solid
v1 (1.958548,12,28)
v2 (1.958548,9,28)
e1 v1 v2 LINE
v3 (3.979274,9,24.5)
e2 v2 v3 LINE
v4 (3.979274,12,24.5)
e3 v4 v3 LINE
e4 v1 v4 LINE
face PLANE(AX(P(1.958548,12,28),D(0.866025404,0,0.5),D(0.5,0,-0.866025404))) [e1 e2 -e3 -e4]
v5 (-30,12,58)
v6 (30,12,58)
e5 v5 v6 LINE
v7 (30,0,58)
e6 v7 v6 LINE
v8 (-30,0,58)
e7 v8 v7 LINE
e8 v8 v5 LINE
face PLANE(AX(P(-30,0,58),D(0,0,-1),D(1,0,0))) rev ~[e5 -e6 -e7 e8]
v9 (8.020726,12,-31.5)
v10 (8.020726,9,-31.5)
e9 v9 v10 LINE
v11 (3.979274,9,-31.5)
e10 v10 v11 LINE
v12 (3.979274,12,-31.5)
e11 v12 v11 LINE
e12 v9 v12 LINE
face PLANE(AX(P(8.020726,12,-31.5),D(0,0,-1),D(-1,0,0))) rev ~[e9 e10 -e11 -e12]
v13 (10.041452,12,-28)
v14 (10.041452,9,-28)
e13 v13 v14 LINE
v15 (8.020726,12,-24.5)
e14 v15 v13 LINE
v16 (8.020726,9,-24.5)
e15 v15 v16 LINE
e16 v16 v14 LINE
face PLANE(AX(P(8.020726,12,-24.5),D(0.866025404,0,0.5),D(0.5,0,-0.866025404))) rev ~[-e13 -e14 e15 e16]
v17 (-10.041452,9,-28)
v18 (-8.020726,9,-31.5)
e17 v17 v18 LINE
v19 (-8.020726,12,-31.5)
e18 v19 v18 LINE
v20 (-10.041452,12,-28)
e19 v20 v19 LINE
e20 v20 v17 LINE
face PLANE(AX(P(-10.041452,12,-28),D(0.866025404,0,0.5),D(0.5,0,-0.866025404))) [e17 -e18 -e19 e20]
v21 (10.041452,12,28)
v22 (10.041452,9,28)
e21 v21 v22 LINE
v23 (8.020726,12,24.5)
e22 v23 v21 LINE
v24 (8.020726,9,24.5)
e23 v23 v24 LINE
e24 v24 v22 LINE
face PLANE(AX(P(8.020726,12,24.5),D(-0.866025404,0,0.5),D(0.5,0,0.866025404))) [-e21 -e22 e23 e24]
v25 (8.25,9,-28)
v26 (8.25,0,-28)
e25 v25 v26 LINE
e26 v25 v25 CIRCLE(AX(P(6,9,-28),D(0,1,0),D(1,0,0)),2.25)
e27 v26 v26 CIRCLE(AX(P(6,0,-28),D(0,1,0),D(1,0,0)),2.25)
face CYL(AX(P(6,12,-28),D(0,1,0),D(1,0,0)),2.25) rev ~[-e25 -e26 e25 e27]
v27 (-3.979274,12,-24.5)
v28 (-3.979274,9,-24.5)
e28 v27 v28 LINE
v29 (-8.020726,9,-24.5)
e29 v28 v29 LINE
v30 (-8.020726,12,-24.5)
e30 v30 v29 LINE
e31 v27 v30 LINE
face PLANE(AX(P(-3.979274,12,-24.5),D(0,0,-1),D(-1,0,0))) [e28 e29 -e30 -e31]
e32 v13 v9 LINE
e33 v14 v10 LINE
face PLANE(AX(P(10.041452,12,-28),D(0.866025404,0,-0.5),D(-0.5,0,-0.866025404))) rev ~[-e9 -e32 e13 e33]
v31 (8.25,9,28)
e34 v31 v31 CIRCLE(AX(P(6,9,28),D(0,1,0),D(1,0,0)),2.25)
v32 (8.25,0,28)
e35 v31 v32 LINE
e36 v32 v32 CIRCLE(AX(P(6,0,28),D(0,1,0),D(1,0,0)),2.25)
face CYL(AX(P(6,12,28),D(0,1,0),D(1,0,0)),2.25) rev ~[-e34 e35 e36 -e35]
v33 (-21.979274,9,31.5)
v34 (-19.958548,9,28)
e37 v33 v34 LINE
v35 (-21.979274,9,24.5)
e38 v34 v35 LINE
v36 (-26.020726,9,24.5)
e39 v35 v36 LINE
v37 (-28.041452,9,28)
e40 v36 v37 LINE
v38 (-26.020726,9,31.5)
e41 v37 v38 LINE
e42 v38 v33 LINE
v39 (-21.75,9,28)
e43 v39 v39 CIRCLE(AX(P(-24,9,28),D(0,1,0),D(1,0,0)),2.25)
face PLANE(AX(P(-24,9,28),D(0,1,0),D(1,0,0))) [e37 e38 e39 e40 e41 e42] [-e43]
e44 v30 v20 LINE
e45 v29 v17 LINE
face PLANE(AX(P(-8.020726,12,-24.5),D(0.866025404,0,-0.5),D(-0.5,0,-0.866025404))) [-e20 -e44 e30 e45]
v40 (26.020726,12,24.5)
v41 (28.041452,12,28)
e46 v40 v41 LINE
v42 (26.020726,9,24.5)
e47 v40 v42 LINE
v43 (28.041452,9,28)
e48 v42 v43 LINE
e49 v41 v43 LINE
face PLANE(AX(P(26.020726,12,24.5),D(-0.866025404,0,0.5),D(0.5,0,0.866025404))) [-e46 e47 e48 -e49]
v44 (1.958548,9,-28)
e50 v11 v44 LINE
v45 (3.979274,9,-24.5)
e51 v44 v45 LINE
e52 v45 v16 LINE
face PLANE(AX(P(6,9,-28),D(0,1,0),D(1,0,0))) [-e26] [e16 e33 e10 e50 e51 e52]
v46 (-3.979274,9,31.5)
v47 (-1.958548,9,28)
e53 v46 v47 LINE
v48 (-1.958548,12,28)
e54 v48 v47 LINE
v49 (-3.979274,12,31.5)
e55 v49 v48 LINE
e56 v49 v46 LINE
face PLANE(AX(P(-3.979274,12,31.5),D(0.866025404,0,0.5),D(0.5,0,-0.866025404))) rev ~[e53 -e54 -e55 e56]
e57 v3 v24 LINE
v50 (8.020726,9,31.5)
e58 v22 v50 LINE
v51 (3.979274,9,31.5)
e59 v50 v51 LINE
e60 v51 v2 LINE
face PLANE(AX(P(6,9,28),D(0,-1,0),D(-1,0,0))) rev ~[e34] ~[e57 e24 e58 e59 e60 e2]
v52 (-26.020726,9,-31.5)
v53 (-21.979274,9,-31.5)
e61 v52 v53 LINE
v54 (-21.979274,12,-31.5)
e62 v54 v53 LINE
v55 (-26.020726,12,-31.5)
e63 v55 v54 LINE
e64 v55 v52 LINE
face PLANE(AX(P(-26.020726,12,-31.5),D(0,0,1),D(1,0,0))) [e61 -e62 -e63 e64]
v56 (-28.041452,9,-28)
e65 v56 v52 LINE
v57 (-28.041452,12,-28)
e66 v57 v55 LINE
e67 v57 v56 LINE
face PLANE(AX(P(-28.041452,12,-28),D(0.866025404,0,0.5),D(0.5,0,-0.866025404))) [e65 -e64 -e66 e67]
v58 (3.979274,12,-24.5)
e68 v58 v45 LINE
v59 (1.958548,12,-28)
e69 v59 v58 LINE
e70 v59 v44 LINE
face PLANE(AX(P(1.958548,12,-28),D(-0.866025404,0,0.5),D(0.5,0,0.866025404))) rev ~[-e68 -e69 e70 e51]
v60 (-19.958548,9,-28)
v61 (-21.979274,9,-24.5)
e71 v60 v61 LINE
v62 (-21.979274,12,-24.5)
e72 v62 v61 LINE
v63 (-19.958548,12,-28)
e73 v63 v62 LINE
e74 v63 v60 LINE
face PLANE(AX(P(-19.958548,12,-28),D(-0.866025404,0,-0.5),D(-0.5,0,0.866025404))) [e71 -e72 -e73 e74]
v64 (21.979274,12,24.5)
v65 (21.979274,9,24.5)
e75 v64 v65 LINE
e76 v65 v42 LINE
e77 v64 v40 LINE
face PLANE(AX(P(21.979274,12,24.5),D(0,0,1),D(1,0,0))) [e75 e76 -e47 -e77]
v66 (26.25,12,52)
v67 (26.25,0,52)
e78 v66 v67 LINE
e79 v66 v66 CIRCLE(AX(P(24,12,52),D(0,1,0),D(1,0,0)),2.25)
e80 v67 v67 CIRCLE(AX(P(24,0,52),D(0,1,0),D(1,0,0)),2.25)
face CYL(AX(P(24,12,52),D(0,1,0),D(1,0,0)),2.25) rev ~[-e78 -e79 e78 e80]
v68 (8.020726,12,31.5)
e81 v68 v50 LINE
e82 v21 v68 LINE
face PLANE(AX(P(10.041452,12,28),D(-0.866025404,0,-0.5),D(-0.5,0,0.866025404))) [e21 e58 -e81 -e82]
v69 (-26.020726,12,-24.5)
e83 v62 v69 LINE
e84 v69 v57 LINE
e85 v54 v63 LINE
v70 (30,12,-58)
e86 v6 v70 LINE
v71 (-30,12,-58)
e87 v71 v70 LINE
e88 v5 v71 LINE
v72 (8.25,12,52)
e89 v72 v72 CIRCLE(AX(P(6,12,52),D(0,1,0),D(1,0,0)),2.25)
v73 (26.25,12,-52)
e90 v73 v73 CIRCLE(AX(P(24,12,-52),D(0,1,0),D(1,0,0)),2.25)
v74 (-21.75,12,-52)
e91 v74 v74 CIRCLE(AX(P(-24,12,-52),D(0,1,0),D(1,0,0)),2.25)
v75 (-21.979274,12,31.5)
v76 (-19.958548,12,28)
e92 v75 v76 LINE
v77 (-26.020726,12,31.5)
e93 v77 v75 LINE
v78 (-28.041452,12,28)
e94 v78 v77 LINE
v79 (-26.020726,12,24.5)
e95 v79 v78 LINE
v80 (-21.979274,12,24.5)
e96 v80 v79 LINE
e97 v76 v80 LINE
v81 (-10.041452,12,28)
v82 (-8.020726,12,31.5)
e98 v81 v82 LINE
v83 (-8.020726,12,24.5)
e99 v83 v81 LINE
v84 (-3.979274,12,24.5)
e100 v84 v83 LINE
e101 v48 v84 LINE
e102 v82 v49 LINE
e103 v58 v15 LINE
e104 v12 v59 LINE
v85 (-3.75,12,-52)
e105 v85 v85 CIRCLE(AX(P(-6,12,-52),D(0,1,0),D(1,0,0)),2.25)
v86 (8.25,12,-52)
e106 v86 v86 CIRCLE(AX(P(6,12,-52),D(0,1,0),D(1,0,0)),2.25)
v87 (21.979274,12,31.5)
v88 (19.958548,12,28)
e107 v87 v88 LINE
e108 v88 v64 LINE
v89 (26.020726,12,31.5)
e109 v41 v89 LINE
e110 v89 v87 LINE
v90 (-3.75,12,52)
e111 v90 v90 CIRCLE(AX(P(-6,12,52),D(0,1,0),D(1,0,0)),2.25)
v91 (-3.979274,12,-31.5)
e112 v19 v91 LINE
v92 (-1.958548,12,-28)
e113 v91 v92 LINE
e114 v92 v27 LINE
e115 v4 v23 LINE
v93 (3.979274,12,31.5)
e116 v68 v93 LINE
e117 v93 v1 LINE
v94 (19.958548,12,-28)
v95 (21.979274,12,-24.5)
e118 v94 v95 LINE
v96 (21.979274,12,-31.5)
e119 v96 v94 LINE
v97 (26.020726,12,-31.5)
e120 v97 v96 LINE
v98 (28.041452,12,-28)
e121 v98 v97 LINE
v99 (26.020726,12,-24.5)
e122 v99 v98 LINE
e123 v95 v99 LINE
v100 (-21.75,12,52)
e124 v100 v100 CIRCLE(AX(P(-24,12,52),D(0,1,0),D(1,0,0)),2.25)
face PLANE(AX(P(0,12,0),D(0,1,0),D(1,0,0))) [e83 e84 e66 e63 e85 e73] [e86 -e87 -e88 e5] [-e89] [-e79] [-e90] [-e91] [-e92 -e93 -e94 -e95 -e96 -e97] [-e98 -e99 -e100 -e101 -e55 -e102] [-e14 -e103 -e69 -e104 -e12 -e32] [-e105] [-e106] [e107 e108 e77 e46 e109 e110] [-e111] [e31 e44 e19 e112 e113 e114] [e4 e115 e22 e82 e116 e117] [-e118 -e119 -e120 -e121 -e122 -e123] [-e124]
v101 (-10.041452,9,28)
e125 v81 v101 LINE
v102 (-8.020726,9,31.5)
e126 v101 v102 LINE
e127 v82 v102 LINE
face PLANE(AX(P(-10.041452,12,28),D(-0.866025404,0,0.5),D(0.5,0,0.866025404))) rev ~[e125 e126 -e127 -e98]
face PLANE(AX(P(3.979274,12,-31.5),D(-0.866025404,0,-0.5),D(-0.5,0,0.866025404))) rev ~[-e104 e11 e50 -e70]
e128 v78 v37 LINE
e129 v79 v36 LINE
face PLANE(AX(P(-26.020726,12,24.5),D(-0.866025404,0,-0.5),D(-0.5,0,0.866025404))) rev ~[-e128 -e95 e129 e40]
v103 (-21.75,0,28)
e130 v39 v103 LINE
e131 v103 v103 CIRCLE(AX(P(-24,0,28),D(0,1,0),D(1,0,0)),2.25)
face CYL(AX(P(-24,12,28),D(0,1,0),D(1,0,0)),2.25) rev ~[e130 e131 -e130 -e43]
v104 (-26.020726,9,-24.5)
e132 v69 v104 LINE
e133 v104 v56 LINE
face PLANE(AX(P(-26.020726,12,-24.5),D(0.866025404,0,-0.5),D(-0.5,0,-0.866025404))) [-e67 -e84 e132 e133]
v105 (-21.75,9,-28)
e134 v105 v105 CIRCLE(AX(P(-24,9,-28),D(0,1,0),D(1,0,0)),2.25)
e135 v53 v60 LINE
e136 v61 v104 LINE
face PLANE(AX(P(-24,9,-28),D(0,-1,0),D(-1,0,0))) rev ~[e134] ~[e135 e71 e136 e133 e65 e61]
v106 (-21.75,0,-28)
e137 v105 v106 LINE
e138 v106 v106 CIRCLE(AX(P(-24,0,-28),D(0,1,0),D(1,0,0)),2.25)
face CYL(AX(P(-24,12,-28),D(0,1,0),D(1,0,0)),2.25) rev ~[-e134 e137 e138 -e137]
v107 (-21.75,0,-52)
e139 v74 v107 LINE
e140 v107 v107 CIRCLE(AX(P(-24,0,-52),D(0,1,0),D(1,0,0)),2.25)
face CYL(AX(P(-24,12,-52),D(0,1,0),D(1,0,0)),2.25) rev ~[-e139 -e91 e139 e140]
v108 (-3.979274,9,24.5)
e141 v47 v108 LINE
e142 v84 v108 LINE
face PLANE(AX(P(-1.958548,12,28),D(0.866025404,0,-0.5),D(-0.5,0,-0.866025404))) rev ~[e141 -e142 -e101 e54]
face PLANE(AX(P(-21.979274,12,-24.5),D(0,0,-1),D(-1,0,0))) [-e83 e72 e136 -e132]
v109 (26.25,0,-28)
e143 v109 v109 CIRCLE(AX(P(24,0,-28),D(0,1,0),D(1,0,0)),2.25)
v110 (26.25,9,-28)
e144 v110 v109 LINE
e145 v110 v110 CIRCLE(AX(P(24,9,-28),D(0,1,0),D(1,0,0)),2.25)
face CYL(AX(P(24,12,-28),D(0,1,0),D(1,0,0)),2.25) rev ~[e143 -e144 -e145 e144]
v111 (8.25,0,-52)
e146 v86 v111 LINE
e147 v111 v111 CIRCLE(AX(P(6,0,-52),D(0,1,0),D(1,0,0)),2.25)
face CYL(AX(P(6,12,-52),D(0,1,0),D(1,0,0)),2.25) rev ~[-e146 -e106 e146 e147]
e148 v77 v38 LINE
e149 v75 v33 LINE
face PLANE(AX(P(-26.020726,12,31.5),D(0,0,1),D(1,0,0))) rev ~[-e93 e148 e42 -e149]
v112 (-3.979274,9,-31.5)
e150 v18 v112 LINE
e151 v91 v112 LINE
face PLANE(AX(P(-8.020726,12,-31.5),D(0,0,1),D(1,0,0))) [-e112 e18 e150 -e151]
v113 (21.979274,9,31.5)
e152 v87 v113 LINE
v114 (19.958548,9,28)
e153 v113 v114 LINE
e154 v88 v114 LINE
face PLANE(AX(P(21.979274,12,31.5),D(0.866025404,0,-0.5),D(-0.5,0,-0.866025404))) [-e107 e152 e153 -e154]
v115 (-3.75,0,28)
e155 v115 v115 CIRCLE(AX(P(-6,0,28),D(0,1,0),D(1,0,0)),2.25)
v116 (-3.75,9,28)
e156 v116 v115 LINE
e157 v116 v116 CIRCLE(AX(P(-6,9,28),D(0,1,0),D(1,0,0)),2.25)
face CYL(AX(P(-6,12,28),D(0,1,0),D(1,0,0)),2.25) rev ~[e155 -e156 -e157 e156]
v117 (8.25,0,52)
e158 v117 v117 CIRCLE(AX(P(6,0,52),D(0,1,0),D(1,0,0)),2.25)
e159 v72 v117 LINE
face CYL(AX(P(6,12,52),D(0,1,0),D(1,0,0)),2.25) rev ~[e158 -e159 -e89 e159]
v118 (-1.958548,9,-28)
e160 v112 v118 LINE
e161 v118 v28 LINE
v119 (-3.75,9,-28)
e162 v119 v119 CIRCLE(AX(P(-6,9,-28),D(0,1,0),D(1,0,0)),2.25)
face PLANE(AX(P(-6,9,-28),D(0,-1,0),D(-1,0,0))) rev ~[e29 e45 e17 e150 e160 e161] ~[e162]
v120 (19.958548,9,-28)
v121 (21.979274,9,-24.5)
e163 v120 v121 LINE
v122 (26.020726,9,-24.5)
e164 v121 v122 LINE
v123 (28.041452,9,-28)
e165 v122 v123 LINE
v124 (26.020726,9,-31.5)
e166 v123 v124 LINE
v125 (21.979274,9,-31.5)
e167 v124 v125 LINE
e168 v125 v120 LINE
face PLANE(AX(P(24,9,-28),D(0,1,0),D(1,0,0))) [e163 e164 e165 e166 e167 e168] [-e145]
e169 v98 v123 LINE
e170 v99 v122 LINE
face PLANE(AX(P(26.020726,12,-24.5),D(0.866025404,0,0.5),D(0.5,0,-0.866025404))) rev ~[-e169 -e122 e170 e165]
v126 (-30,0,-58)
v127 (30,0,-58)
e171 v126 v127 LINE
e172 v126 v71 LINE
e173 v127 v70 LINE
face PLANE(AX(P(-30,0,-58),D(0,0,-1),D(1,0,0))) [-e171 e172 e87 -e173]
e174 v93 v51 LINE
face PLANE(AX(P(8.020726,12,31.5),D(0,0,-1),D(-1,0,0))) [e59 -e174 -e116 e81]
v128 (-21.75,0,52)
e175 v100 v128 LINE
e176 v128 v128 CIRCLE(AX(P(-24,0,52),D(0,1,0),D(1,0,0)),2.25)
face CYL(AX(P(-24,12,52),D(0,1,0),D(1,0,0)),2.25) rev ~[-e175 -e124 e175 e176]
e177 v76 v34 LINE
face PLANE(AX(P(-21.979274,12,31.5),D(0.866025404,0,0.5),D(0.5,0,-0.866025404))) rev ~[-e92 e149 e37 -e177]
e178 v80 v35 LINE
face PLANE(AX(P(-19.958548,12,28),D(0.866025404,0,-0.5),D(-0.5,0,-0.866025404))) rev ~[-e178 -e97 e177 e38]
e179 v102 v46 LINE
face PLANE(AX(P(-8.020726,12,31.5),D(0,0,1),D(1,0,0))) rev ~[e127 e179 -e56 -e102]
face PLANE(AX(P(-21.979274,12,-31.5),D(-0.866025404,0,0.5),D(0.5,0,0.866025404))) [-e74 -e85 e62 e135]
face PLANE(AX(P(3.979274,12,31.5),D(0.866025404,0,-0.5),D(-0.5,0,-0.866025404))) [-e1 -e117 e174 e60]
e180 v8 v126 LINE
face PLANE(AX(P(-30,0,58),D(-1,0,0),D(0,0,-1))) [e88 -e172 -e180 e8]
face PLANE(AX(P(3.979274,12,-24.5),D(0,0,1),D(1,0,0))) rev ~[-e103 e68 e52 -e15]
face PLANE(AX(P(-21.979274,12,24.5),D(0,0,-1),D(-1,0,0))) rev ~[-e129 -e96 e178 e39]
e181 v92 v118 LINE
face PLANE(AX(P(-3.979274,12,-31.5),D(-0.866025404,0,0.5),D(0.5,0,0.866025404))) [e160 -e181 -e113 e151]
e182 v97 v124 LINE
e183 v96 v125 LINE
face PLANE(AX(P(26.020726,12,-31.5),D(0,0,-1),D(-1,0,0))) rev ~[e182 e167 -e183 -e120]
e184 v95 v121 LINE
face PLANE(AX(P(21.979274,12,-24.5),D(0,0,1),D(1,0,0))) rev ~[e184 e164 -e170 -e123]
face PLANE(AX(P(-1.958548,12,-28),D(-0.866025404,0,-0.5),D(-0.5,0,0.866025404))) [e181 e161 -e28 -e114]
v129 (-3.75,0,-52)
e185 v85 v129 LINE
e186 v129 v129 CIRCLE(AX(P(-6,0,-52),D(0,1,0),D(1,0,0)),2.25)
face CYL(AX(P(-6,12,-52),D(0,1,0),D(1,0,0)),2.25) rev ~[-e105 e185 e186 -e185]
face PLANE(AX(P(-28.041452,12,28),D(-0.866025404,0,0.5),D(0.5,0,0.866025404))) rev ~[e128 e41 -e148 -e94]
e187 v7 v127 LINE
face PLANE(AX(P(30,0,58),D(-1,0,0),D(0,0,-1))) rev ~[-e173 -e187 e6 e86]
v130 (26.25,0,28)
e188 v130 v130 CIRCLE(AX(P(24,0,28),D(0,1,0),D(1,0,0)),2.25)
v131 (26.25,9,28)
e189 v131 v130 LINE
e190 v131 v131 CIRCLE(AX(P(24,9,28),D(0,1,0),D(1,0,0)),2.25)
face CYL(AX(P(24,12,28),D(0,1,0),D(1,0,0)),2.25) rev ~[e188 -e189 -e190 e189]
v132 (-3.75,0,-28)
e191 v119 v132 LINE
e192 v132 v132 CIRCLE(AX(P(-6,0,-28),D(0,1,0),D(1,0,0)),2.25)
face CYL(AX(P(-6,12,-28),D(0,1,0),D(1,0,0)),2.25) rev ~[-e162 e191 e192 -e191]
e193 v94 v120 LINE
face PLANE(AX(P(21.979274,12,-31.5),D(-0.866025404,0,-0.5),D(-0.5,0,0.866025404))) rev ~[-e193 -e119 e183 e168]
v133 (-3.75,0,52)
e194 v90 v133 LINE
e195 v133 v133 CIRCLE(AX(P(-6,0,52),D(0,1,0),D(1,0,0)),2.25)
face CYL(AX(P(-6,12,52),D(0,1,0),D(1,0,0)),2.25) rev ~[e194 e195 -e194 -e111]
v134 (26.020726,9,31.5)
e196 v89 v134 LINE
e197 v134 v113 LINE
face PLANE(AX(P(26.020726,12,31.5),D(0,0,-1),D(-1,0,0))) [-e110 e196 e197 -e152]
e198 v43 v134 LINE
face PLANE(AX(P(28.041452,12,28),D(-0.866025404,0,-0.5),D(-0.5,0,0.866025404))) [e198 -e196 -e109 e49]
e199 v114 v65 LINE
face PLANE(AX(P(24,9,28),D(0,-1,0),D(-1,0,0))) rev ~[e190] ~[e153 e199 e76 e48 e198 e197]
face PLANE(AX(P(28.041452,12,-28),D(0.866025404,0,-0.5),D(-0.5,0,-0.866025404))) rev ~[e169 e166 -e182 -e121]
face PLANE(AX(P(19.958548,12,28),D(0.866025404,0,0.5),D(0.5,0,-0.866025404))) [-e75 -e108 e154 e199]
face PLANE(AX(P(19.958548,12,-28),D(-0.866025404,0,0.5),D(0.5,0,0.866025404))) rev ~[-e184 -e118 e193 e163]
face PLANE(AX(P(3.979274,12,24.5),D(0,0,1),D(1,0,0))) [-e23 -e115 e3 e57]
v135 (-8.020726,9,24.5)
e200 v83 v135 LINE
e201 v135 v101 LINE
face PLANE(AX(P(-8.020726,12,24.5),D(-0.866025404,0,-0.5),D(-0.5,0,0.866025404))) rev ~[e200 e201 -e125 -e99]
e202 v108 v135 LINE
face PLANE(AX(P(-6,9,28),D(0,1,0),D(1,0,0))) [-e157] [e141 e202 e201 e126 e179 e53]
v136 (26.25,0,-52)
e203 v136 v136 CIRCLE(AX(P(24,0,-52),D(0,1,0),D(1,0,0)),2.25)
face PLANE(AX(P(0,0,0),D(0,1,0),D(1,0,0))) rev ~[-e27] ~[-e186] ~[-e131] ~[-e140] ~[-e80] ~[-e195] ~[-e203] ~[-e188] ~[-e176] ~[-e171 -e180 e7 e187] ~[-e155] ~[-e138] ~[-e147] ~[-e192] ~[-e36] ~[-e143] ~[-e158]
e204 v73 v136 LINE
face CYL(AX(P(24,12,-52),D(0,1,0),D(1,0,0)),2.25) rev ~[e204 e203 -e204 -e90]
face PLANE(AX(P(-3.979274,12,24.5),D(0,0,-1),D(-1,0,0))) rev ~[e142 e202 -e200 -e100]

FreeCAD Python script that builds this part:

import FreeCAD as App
import Part
import Sketcher
Q = App.Units.Quantity


def add_polygon(sketch, points):
    """Adds a closed chain of lines whose ends are joined by coincident constraints."""
    first, n = sketch.GeometryCount, len(points)
    for a, b in zip(points, points[1:] + points[:1]):
        sketch.addGeometry(Part.LineSegment(App.Vector(*a, 0), App.Vector(*b, 0)), False)
    for i in range(n):
        sketch.addConstraint(Sketcher.Constraint("Coincident", first + i, 2, first + (i + 1) % n, 1))

doc = App.newDocument("Part")
params = doc.addObject("Spreadsheet::Sheet", "Params")
for row, (alias, value) in enumerate([
    ("sketch1_width", "60 mm"),
    ("sketch1_height", "116 mm"),
    ("pad1_length", "12 mm"),
    ("sketch2_diameter", "4.5 mm"),
    ("sketch3_diameter", "4.5 mm"),
    ("sketch4_diameter", "4.5 mm"),
    ("sketch5_diameter", "4.5 mm"),
    ("sketch6_diameter", "4.5 mm"),
    ("sketch7_diameter", "4.5 mm"),
    ("sketch8_diameter", "4.5 mm"),
    ("sketch9_diameter", "4.5 mm"),
    ("sketch10_diameter", "4.5 mm"),
    ("sketch11_diameter", "4.5 mm"),
    ("sketch12_diameter", "4.5 mm"),
    ("sketch13_diameter", "4.5 mm"),
    ("sketch14_diameter", "4.5 mm"),
    ("sketch15_diameter", "4.5 mm"),
    ("sketch16_diameter", "4.5 mm"),
    ("sketch17_diameter", "4.5 mm"),
    ("sketch18_diameter", "4.5 mm"),
    ("pocket17_length", "1 mm"),
    ("pocket18_length", "1 mm"),
    ("pocket18_length2", "3 mm"),
], start=1):
    params.set(f"A{row}", alias)
    params.set(f"B{row}", "=" + value)
    params.setAlias(f"B{row}", alias)

body = doc.addObject("PartDesign::Body", "Body")

# Sketch on XZ plane
sketch1 = body.newObject("Sketcher::SketchObject", "Sketch")
sketch1.AttachmentSupport = (doc.getObject("XZ_Plane"), [""])
sketch1.MapMode = "FlatFace"
add_polygon(sketch1, [(-30, -58), (-30, 58), (30, 58), (30, -58)])  # lines 0-3
sketch1.addConstraint([
    Sketcher.Constraint("Vertical", 0),
    Sketcher.Constraint("Horizontal", 1),
    Sketcher.Constraint("Vertical", 2),
    Sketcher.Constraint("Horizontal", 3),
    Sketcher.Constraint("Symmetric", 0, 2, 2, 2, -1, 1),
    Sketcher.Constraint("DistanceX", 1, 1, 1, 2, 60.0),
    Sketcher.Constraint("DistanceY", 0, 1, 0, 2, 116.0),
])
sketch1.setExpression("Constraints[9]", "Params.sketch1_width")
sketch1.setExpression("Constraints[10]", "Params.sketch1_height")
pad1 = body.newObject("PartDesign::Pad", "Pad")
pad1.Profile = sketch1
pad1.setExpression("Length", "Params.pad1_length")
pad1.Reversed = True

# Sketch on XZ plane
sketch2 = body.newObject("Sketcher::SketchObject", "Sketch001")
sketch2.AttachmentSupport = (doc.getObject("XZ_Plane"), [""])
sketch2.MapMode = "FlatFace"
sketch2.AttachmentOffset = App.Placement(App.Vector(0, 0, -12), App.Rotation())
sketch2.addGeometry(Part.Circle(App.Vector(-24, -52, 0), App.Vector(0, 0, 1), 2.2), False)
sketch2.addConstraint([
    Sketcher.Constraint("Diameter", 0, 4.5),
    Sketcher.Constraint("DistanceX", 0, 3, -1, 1, 24.0),
    Sketcher.Constraint("DistanceY", 0, 3, -1, 1, 52.0),
])
sketch2.setExpression("Constraints[0]", "Params.sketch2_diameter")
pocket1 = body.newObject("PartDesign::Pocket", "Pocket")
pocket1.Profile = sketch2
pocket1.Type = "UpToFirst"
pocket1.Reversed = True

# Sketch on XZ plane
sketch3 = body.newObject("Sketcher::SketchObject", "Sketch002")
sketch3.AttachmentSupport = (doc.getObject("XZ_Plane"), [""])
sketch3.MapMode = "FlatFace"
sketch3.AttachmentOffset = App.Placement(App.Vector(0, 0, -12), App.Rotation())
sketch3.addGeometry(Part.Circle(App.Vector(-6, -52, 0), App.Vector(0, 0, 1), 2.2), False)
sketch3.addConstraint([
    Sketcher.Constraint("Diameter", 0, 4.5),
    Sketcher.Constraint("DistanceX", 0, 3, -1, 1, 6.0),
    Sketcher.Constraint("DistanceY", 0, 3, -1, 1, 52.0),
])
sketch3.setExpression("Constraints[0]", "Params.sketch3_diameter")
pocket2 = body.newObject("PartDesign::Pocket", "Pocket001")
pocket2.Profile = sketch3
pocket2.Type = "UpToFirst"
pocket2.Reversed = True

# Sketch on XZ plane
sketch4 = body.newObject("Sketcher::SketchObject", "Sketch003")
sketch4.AttachmentSupport = (doc.getObject("XZ_Plane"), [""])
sketch4.MapMode = "FlatFace"
sketch4.AttachmentOffset = App.Placement(App.Vector(0, 0, -12), App.Rotation())
sketch4.addGeometry(Part.Circle(App.Vector(-24, -28, 0), App.Vector(0, 0, 1), 2.2), False)
sketch4.addConstraint([
    Sketcher.Constraint("Diameter", 0, 4.5),
    Sketcher.Constraint("DistanceX", 0, 3, -1, 1, 24.0),
    Sketcher.Constraint("DistanceY", 0, 3, -1, 1, 28.0),
])
sketch4.setExpression("Constraints[0]", "Params.sketch4_diameter")
pocket3 = body.newObject("PartDesign::Pocket", "Pocket002")
pocket3.Profile = sketch4
pocket3.Type = "UpToFirst"
pocket3.Reversed = True

# Sketch on XZ plane
sketch5 = body.newObject("Sketcher::SketchObject", "Sketch004")
sketch5.AttachmentSupport = (doc.getObject("XZ_Plane"), [""])
sketch5.MapMode = "FlatFace"
sketch5.AttachmentOffset = App.Placement(App.Vector(0, 0, -12), App.Rotation())
sketch5.addGeometry(Part.Circle(App.Vector(-6, -28, 0), App.Vector(0, 0, 1), 2.2), False)
sketch5.addConstraint([
    Sketcher.Constraint("Diameter", 0, 4.5),
    Sketcher.Constraint("DistanceX", 0, 3, -1, 1, 6.0),
    Sketcher.Constraint("DistanceY", 0, 3, -1, 1, 28.0),
])
sketch5.setExpression("Constraints[0]", "Params.sketch5_diameter")
pocket4 = body.newObject("PartDesign::Pocket", "Pocket003")
pocket4.Profile = sketch5
pocket4.Type = "UpToFirst"
pocket4.Reversed = True

# Sketch on XZ plane
sketch6 = body.newObject("Sketcher::SketchObject", "Sketch005")
sketch6.AttachmentSupport = (doc.getObject("XZ_Plane"), [""])
sketch6.MapMode = "FlatFace"
sketch6.AttachmentOffset = App.Placement(App.Vector(0, 0, -12), App.Rotation())
sketch6.addGeometry(Part.Circle(App.Vector(6, -28, 0), App.Vector(0, 0, 1), 2.2), False)
sketch6.addConstraint([
    Sketcher.Constraint("Diameter", 0, 4.5),
    Sketcher.Constraint("DistanceX", -1, 1, 0, 3, 6.0),
    Sketcher.Constraint("DistanceY", 0, 3, -1, 1, 28.0),
])
sketch6.setExpression("Constraints[0]", "Params.sketch6_diameter")
pocket5 = body.newObject("PartDesign::Pocket", "Pocket004")
pocket5.Profile = sketch6
pocket5.Type = "UpToFirst"
pocket5.Reversed = True

# Sketch on XZ plane
sketch7 = body.newObject("Sketcher::SketchObject", "Sketch006")
sketch7.AttachmentSupport = (doc.getObject("XZ_Plane"), [""])
sketch7.MapMode = "FlatFace"
sketch7.AttachmentOffset = App.Placement(App.Vector(0, 0, -12), App.Rotation())
sketch7.addGeometry(Part.Circle(App.Vector(24, -28, 0), App.Vector(0, 0, 1), 2.2), False)
sketch7.addConstraint([
    Sketcher.Constraint("Diameter", 0, 4.5),
    Sketcher.Constraint("DistanceX", -1, 1, 0, 3, 24.0),
    Sketcher.Constraint("DistanceY", 0, 3, -1, 1, 28.0),
])
sketch7.setExpression("Constraints[0]", "Params.sketch7_diameter")
pocket6 = body.newObject("PartDesign::Pocket", "Pocket005")
pocket6.Profile = sketch7
pocket6.Type = "UpToFirst"
pocket6.Reversed = True

# Sketch on XZ plane
sketch8 = body.newObject("Sketcher::SketchObject", "Sketch007")
sketch8.AttachmentSupport = (doc.getObject("XZ_Plane"), [""])
sketch8.MapMode = "FlatFace"
sketch8.AttachmentOffset = App.Placement(App.Vector(0, 0, -12), App.Rotation())
sketch8.addGeometry(Part.Circle(App.Vector(6, -52, 0), App.Vector(0, 0, 1), 2.2), False)
sketch8.addConstraint([
    Sketcher.Constraint("Diameter", 0, 4.5),
    Sketcher.Constraint("DistanceX", -1, 1, 0, 3, 6.0),
    Sketcher.Constraint("DistanceY", 0, 3, -1, 1, 52.0),
])
sketch8.setExpression("Constraints[0]", "Params.sketch8_diameter")
pocket7 = body.newObject("PartDesign::Pocket", "Pocket006")
pocket7.Profile = sketch8
pocket7.Type = "UpToFirst"
pocket7.Reversed = True

# Sketch on XZ plane
sketch9 = body.newObject("Sketcher::SketchObject", "Sketch008")
sketch9.AttachmentSupport = (doc.getObject("XZ_Plane"), [""])
sketch9.MapMode = "FlatFace"
sketch9.AttachmentOffset = App.Placement(App.Vector(0, 0, -12), App.Rotation())
sketch9.addGeometry(Part.Circle(App.Vector(24, -52, 0), App.Vector(0, 0, 1), 2.2), False)
sketch9.addConstraint([
    Sketcher.Constraint("Diameter", 0, 4.5),
    Sketcher.Constraint("DistanceX", -1, 1, 0, 3, 24.0),
    Sketcher.Constraint("DistanceY", 0, 3, -1, 1, 52.0),
])
sketch9.setExpression("Constraints[0]", "Params.sketch9_diameter")
pocket8 = body.newObject("PartDesign::Pocket", "Pocket007")
pocket8.Profile = sketch9
pocket8.Type = "UpToFirst"
pocket8.Reversed = True

# Sketch on XZ plane
sketch10 = body.newObject("Sketcher::SketchObject", "Sketch009")
sketch10.AttachmentSupport = (doc.getObject("XZ_Plane"), [""])
sketch10.MapMode = "FlatFace"
sketch10.AttachmentOffset = App.Placement(App.Vector(0, 0, -12), App.Rotation())
sketch10.addGeometry(Part.Circle(App.Vector(24, 52, 0), App.Vector(0, 0, 1), 2.2), False)
sketch10.addConstraint([
    Sketcher.Constraint("Diameter", 0, 4.5),
    Sketcher.Constraint("DistanceX", -1, 1, 0, 3, 24.0),
    Sketcher.Constraint("DistanceY", -1, 1, 0, 3, 52.0),
])
sketch10.setExpression("Constraints[0]", "Params.sketch10_diameter")
pocket9 = body.newObject("PartDesign::Pocket", "Pocket008")
pocket9.Profile = sketch10
pocket9.Type = "UpToFirst"
pocket9.Reversed = True

# Sketch on XZ plane
sketch11 = body.newObject("Sketcher::SketchObject", "Sketch010")
sketch11.AttachmentSupport = (doc.getObject("XZ_Plane"), [""])
sketch11.MapMode = "FlatFace"
sketch11.AttachmentOffset = App.Placement(App.Vector(0, 0, -12), App.Rotation())
sketch11.addGeometry(Part.Circle(App.Vector(6, 52, 0), App.Vector(0, 0, 1), 2.2), False)
sketch11.addConstraint([
    Sketcher.Constraint("Diameter", 0, 4.5),
    Sketcher.Constraint("DistanceX", -1, 1, 0, 3, 6.0),
    Sketcher.Constraint("DistanceY", -1, 1, 0, 3, 52.0),
])
sketch11.setExpression("Constraints[0]", "Params.sketch11_diameter")
pocket10 = body.newObject("PartDesign::Pocket", "Pocket009")
pocket10.Profile = sketch11
pocket10.Type = "UpToFirst"
pocket10.Reversed = True

# Sketch on XZ plane
sketch12 = body.newObject("Sketcher::SketchObject", "Sketch011")
sketch12.AttachmentSupport = (doc.getObject("XZ_Plane"), [""])
sketch12.MapMode = "FlatFace"
sketch12.AttachmentOffset = App.Placement(App.Vector(0, 0, -12), App.Rotation())
sketch12.addGeometry(Part.Circle(App.Vector(24, 28, 0), App.Vector(0, 0, 1), 2.2), False)
sketch12.addConstraint([
    Sketcher.Constraint("Diameter", 0, 4.5),
    Sketcher.Constraint("DistanceX", -1, 1, 0, 3, 24.0),
    Sketcher.Constraint("DistanceY", -1, 1, 0, 3, 28.0),
])
sketch12.setExpression("Constraints[0]", "Params.sketch12_diameter")
pocket11 = body.newObject("PartDesign::Pocket", "Pocket010")
pocket11.Profile = sketch12
pocket11.Type = "UpToFirst"
pocket11.Reversed = True

# Sketch on XZ plane
sketch13 = body.newObject("Sketcher::SketchObject", "Sketch012")
sketch13.AttachmentSupport = (doc.getObject("XZ_Plane"), [""])
sketch13.MapMode = "FlatFace"
sketch13.AttachmentOffset = App.Placement(App.Vector(0, 0, -12), App.Rotation())
sketch13.addGeometry(Part.Circle(App.Vector(6, 28, 0), App.Vector(0, 0, 1), 2.2), False)
sketch13.addConstraint([
    Sketcher.Constraint("Diameter", 0, 4.5),
    Sketcher.Constraint("DistanceX", -1, 1, 0, 3, 6.0),
    Sketcher.Constraint("DistanceY", -1, 1, 0, 3, 28.0),
])
sketch13.setExpression("Constraints[0]", "Params.sketch13_diameter")
pocket12 = body.newObject("PartDesign::Pocket", "Pocket011")
pocket12.Profile = sketch13
pocket12.Type = "UpToFirst"
pocket12.Reversed = True

# Sketch on XZ plane
sketch14 = body.newObject("Sketcher::SketchObject", "Sketch013")
sketch14.AttachmentSupport = (doc.getObject("XZ_Plane"), [""])
sketch14.MapMode = "FlatFace"
sketch14.AttachmentOffset = App.Placement(App.Vector(0, 0, -12), App.Rotation())
sketch14.addGeometry(Part.Circle(App.Vector(-6, 28, 0), App.Vector(0, 0, 1), 2.2), False)
sketch14.addConstraint([
    Sketcher.Constraint("Diameter", 0, 4.5),
    Sketcher.Constraint("DistanceX", 0, 3, -1, 1, 6.0),
    Sketcher.Constraint("DistanceY", -1, 1, 0, 3, 28.0),
])
sketch14.setExpression("Constraints[0]", "Params.sketch14_diameter")
pocket13 = body.newObject("PartDesign::Pocket", "Pocket012")
pocket13.Profile = sketch14
pocket13.Type = "UpToFirst"
pocket13.Reversed = True

# Sketch on XZ plane
sketch15 = body.newObject("Sketcher::SketchObject", "Sketch014")
sketch15.AttachmentSupport = (doc.getObject("XZ_Plane"), [""])
sketch15.MapMode = "FlatFace"
sketch15.AttachmentOffset = App.Placement(App.Vector(0, 0, -12), App.Rotation())
sketch15.addGeometry(Part.Circle(App.Vector(-24, 28, 0), App.Vector(0, 0, 1), 2.2), False)
sketch15.addConstraint([
    Sketcher.Constraint("Diameter", 0, 4.5),
    Sketcher.Constraint("DistanceX", 0, 3, -1, 1, 24.0),
    Sketcher.Constraint("DistanceY", -1, 1, 0, 3, 28.0),
])
sketch15.setExpression("Constraints[0]", "Params.sketch15_diameter")
pocket14 = body.newObject("PartDesign::Pocket", "Pocket013")
pocket14.Profile = sketch15
pocket14.Type = "UpToFirst"
pocket14.Reversed = True

# Sketch on XZ plane
sketch16 = body.newObject("Sketcher::SketchObject", "Sketch015")
sketch16.AttachmentSupport = (doc.getObject("XZ_Plane"), [""])
sketch16.MapMode = "FlatFace"
sketch16.AttachmentOffset = App.Placement(App.Vector(0, 0, -12), App.Rotation())
sketch16.addGeometry(Part.Circle(App.Vector(-6, 52, 0), App.Vector(0, 0, 1), 2.2), False)
sketch16.addConstraint([
    Sketcher.Constraint("Diameter", 0, 4.5),
    Sketcher.Constraint("DistanceX", 0, 3, -1, 1, 6.0),
    Sketcher.Constraint("DistanceY", -1, 1, 0, 3, 52.0),
])
sketch16.setExpression("Constraints[0]", "Params.sketch16_diameter")
pocket15 = body.newObject("PartDesign::Pocket", "Pocket014")
pocket15.Profile = sketch16
pocket15.Type = "UpToFirst"
pocket15.Reversed = True

# Sketch on XZ plane
sketch17 = body.newObject("Sketcher::SketchObject", "Sketch016")
sketch17.AttachmentSupport = (doc.getObject("XZ_Plane"), [""])
sketch17.MapMode = "FlatFace"
sketch17.AttachmentOffset = App.Placement(App.Vector(0, 0, -12), App.Rotation())
sketch17.addGeometry(Part.Circle(App.Vector(-24, 52, 0), App.Vector(0, 0, 1), 2.2), False)
sketch17.addConstraint([
    Sketcher.Constraint("Diameter", 0, 4.5),
    Sketcher.Constraint("DistanceX", 0, 3, -1, 1, 24.0),
    Sketcher.Constraint("DistanceY", -1, 1, 0, 3, 52.0),
])
sketch17.setExpression("Constraints[0]", "Params.sketch17_diameter")
pocket16 = body.newObject("PartDesign::Pocket", "Pocket015")
pocket16.Profile = sketch17
pocket16.Type = "UpToFirst"
pocket16.Reversed = True

# Sketch on XZ plane
sketch18 = body.newObject("Sketcher::SketchObject", "Sketch017")
sketch18.AttachmentSupport = (doc.getObject("XZ_Plane"), [""])
sketch18.MapMode = "FlatFace"
sketch18.AttachmentOffset = App.Placement(App.Vector(0, 0, -12), App.Rotation())
sketch18.addGeometry([
    Part.Circle(App.Vector(-24, -52, 0), App.Vector(0, 0, 1), 2.2),  # 0
    Part.Circle(App.Vector(-6, -52, 0), App.Vector(0, 0, 1), 2.2),  # 1
    Part.Circle(App.Vector(-24, -28, 0), App.Vector(0, 0, 1), 2.2),  # 2
    Part.Circle(App.Vector(-6, -28, 0), App.Vector(0, 0, 1), 2.2),  # 3
    Part.Circle(App.Vector(6, -28, 0), App.Vector(0, 0, 1), 2.2),  # 4
    Part.Circle(App.Vector(24, -28, 0), App.Vector(0, 0, 1), 2.2),  # 5
    Part.Circle(App.Vector(6, -52, 0), App.Vector(0, 0, 1), 2.2),  # 6
    Part.Circle(App.Vector(24, -52, 0), App.Vector(0, 0, 1), 2.2),  # 7
    Part.Circle(App.Vector(24, 52, 0), App.Vector(0, 0, 1), 2.2),  # 8
    Part.Circle(App.Vector(6, 52, 0), App.Vector(0, 0, 1), 2.2),  # 9
    Part.Circle(App.Vector(24, 28, 0), App.Vector(0, 0, 1), 2.2),  # 10
    Part.Circle(App.Vector(6, 28, 0), App.Vector(0, 0, 1), 2.2),  # 11
    Part.Circle(App.Vector(-6, 28, 0), App.Vector(0, 0, 1), 2.2),  # 12
    Part.Circle(App.Vector(-24, 28, 0), App.Vector(0, 0, 1), 2.2),  # 13
    Part.Circle(App.Vector(-6, 52, 0), App.Vector(0, 0, 1), 2.2),  # 14
    Part.Circle(App.Vector(-24, 52, 0), App.Vector(0, 0, 1), 2.2),  # 15
], False)
sketch18.addConstraint([
    Sketcher.Constraint("Equal", 0, 1),
    Sketcher.Constraint("Equal", 1, 2),
    Sketcher.Constraint("Equal", 2, 3),
    Sketcher.Constraint("Equal", 3, 4),
    Sketcher.Constraint("Equal", 4, 5),
    Sketcher.Constraint("Equal", 5, 6),
    Sketcher.Constraint("Equal", 6, 7),
    Sketcher.Constraint("Equal", 7, 8),
    Sketcher.Constraint("Equal", 8, 9),
    Sketcher.Constraint("Equal", 9, 10),
    Sketcher.Constraint("Equal", 10, 11),
    Sketcher.Constraint("Equal", 11, 12),
    Sketcher.Constraint("Equal", 12, 13),
    Sketcher.Constraint("Equal", 13, 14),
    Sketcher.Constraint("Equal", 14, 15),
    Sketcher.Constraint("Symmetric", 0, 3, 8, 3, -1, 1),
    Sketcher.Constraint("Symmetric", 1, 3, 9, 3, -1, 1),
    Sketcher.Constraint("Symmetric", 2, 3, 10, 3, -1, 1),
    Sketcher.Constraint("Symmetric", 3, 3, 11, 3, -1, 1),
    Sketcher.Constraint("Symmetric", 4, 3, 12, 3, -1, 1),
    Sketcher.Constraint("Symmetric", 5, 3, 13, 3, -1, 1),
    Sketcher.Constraint("Symmetric", 6, 3, 14, 3, -1, 1),
    Sketcher.Constraint("Symmetric", 7, 3, 15, 3, -1, 1),
    Sketcher.Constraint("Symmetric", 3, 3, 4, 3, -2),
    Sketcher.Constraint("Symmetric", 2, 3, 5, 3, -2),
    Sketcher.Constraint("Symmetric", 1, 3, 6, 3, -2),
    Sketcher.Constraint("Symmetric", 0, 3, 7, 3, -2),
    Sketcher.Constraint("Horizontal", 0, 3, 1, 3),
    Sketcher.Constraint("Horizontal", 2, 3, 3, 3),
    Sketcher.Constraint("Vertical", 0, 3, 2, 3),
    Sketcher.Constraint("Vertical", 1, 3, 3, 3),
    Sketcher.Constraint("Diameter", 0, 4.5),
    Sketcher.Constraint("DistanceX", 0, 3, -1, 1, 24.0),
    Sketcher.Constraint("DistanceY", 0, 3, -1, 1, 52.0),
    Sketcher.Constraint("DistanceX", 1, 3, -1, 1, 6.0),
    Sketcher.Constraint("DistanceY", 2, 3, -1, 1, 28.0),
])
sketch18.setExpression("Constraints[31]", "Params.sketch18_diameter")
pocket17 = body.newObject("PartDesign::Pocket", "Pocket016")
pocket17.Profile = sketch18
pocket17.setExpression("Length", "Params.pocket17_length")

# Sketch on XZ plane
sketch19 = body.newObject("Sketcher::SketchObject", "Sketch018")
sketch19.AttachmentSupport = (doc.getObject("XZ_Plane"), [""])
sketch19.MapMode = "FlatFace"
sketch19.AttachmentOffset = App.Placement(App.Vector(0, 0, -12), App.Rotation())
add_polygon(sketch19, [(-20, 28), (-22, 24.5), (-26, 24.5), (-28, 28), (-26, 31.5), (-22, 31.5)])  # lines 0-5
add_polygon(sketch19, [(-2, 28), (-4, 24.5), (-8, 24.5), (-10, 28), (-8, 31.5), (-4, 31.5)])  # lines 6-11
add_polygon(sketch19, [(2, 28), (4, 31.5), (8, 31.5), (10, 28), (8, 24.5), (4, 24.5)])  # lines 12-17
add_polygon(sketch19, [(20, 28), (22, 31.5), (26, 31.5), (28, 28), (26, 24.5), (22, 24.5)])  # lines 18-23
add_polygon(sketch19, [(26, -31.5), (22, -31.5), (20, -28), (22, -24.5), (26, -24.5), (28, -28)])  # lines 24-29
add_polygon(sketch19, [(8, -31.5), (4, -31.5), (2, -28), (4, -24.5), (8, -24.5), (10, -28)])  # lines 30-35
add_polygon(sketch19, [(-2, -28), (-4, -31.5), (-8, -31.5), (-10, -28), (-8, -24.5), (-4, -24.5)])  # lines 36-41
add_polygon(sketch19, [(-20, -28), (-22, -31.5), (-26, -31.5), (-28, -28), (-26, -24.5), (-22, -24.5)])  # lines 42-47
sketch19.addConstraint([
    Sketcher.Constraint("Horizontal", 1),
    Sketcher.Constraint("Horizontal", 4),
    Sketcher.Constraint("Horizontal", 7),
    Sketcher.Constraint("Horizontal", 10),
    Sketcher.Constraint("Horizontal", 13),
    Sketcher.Constraint("Horizontal", 16),
    Sketcher.Constraint("Horizontal", 19),
    Sketcher.Constraint("Horizontal", 22),
    Sketcher.Constraint("Horizontal", 24),
    Sketcher.Constraint("Horizontal", 27),
    Sketcher.Constraint("Horizontal", 30),
    Sketcher.Constraint("Horizontal", 33),
    Sketcher.Constraint("Horizontal", 37),
    Sketcher.Constraint("Horizontal", 40),
    Sketcher.Constraint("Horizontal", 43),
    Sketcher.Constraint("Horizontal", 46),
    Sketcher.Constraint("Symmetric", 4, 2, 24, 2, -1, 1),
    Sketcher.Constraint("Symmetric", 5, 2, 25, 2, -1, 1),
    Sketcher.Constraint("Symmetric", 0, 2, 26, 2, -1, 1),
    Sketcher.Constraint("Symmetric", 2, 2, 28, 2, -1, 1),
    Sketcher.Constraint("Symmetric", 10, 2, 30, 2, -1, 1),
    Sketcher.Constraint("Symmetric", 11, 2, 31, 2, -1, 1),
    Sketcher.Constraint("Symmetric", 6, 2, 32, 2, -1, 1),
    Sketcher.Constraint("Symmetric", 8, 2, 34, 2, -1, 1),
    Sketcher.Constraint("Symmetric", 12, 2, 36, 2, -1, 1),
    Sketcher.Constraint("Symmetric", 14, 2, 38, 2, -1, 1),
    Sketcher.Constraint("Symmetric", 15, 2, 39, 2, -1, 1),
    Sketcher.Constraint("Symmetric", 17, 2, 41, 2, -1, 1),
    Sketcher.Constraint("Symmetric", 18, 2, 42, 2, -1, 1),
    Sketcher.Constraint("Symmetric", 20, 2, 44, 2, -1, 1),
    Sketcher.Constraint("Symmetric", 21, 2, 45, 2, -1, 1),
    Sketcher.Constraint("Symmetric", 23, 2, 47, 2, -1, 1),
    Sketcher.Constraint("Symmetric", 10, 2, 12, 2, -2),
    Sketcher.Constraint("Symmetric", 8, 2, 14, 2, -2),
    Sketcher.Constraint("Symmetric", 7, 2, 15, 2, -2),
    Sketcher.Constraint("Symmetric", 11, 2, 17, 2, -2),
    Sketcher.Constraint("Symmetric", 4, 2, 18, 2, -2),
    Sketcher.Constraint("Symmetric", 2, 2, 20, 2, -2),
    Sketcher.Constraint("Symmetric", 1, 2, 21, 2, -2),
    Sketcher.Constraint("Symmetric", 5, 2, 23, 2, -2),
    Sketcher.Constraint("Parallel", 0, 3),
    Sketcher.Constraint("Parallel", 2, 5),
    Sketcher.Constraint("Parallel", 3, 6),
    Sketcher.Constraint("Parallel", 5, 8),
    Sketcher.Constraint("Parallel", 6, 9),
    Sketcher.Constraint("Parallel", 8, 11),
    Sketcher.Constraint("Parallel", 9, 12),
    Sketcher.Constraint("Parallel", 11, 14),
    Sketcher.Constraint("Parallel", 14, 17),
    Sketcher.Constraint("Parallel", 17, 20),
    Sketcher.Constraint("Parallel", 20, 23),
    Sketcher.Constraint("Parallel", 25, 28),
    Sketcher.Constraint("Parallel", 26, 29),
    Sketcher.Constraint("Parallel", 31, 34),
    Sketcher.Constraint("Parallel", 32, 35),
    Sketcher.Constraint("Parallel", 34, 38),
    Sketcher.Constraint("Parallel", 38, 41),
    Sketcher.Constraint("Parallel", 41, 44),
    Sketcher.Constraint("Parallel", 44, 47),
    Sketcher.Constraint("Horizontal", 2, 2, 5, 2),
    Sketcher.Constraint("Horizontal", 1, 2, 6, 2),
    Sketcher.Constraint("Horizontal", 5, 2, 8, 2),
    Sketcher.Constraint("Horizontal", 4, 2, 9, 2),
    Sketcher.Constraint("Horizontal", 8, 2, 11, 2),
    Sketcher.Constraint("Vertical", 1, 2, 3, 2),
    Sketcher.Constraint("Equal", 4, 7),
    Sketcher.Constraint("Angle", 0, Q("-120 deg")),
    Sketcher.Constraint("DistanceY", -1, 1, 2, 2, 28.0),
    Sketcher.Constraint("DistanceY", 1, 2, 3, 2, 7.0),
    Sketcher.Constraint("DistanceX", 0, 2, 6, 2, 18.0),
    Sketcher.Constraint("DistanceX", 9, 2, 12, 2, 12.0),
    Sketcher.Constraint("DistanceX", 1, 2, 1, 1, 4.041452),
])
pocket18 = body.newObject("PartDesign::Pocket", "Pocket017")
pocket18.Profile = sketch19
pocket18.Type = "TwoLengths"
pocket18.setExpression("Length", "Params.pocket18_length")
pocket18.setExpression("Length2", "Params.pocket18_length2")

doc.recompute()
